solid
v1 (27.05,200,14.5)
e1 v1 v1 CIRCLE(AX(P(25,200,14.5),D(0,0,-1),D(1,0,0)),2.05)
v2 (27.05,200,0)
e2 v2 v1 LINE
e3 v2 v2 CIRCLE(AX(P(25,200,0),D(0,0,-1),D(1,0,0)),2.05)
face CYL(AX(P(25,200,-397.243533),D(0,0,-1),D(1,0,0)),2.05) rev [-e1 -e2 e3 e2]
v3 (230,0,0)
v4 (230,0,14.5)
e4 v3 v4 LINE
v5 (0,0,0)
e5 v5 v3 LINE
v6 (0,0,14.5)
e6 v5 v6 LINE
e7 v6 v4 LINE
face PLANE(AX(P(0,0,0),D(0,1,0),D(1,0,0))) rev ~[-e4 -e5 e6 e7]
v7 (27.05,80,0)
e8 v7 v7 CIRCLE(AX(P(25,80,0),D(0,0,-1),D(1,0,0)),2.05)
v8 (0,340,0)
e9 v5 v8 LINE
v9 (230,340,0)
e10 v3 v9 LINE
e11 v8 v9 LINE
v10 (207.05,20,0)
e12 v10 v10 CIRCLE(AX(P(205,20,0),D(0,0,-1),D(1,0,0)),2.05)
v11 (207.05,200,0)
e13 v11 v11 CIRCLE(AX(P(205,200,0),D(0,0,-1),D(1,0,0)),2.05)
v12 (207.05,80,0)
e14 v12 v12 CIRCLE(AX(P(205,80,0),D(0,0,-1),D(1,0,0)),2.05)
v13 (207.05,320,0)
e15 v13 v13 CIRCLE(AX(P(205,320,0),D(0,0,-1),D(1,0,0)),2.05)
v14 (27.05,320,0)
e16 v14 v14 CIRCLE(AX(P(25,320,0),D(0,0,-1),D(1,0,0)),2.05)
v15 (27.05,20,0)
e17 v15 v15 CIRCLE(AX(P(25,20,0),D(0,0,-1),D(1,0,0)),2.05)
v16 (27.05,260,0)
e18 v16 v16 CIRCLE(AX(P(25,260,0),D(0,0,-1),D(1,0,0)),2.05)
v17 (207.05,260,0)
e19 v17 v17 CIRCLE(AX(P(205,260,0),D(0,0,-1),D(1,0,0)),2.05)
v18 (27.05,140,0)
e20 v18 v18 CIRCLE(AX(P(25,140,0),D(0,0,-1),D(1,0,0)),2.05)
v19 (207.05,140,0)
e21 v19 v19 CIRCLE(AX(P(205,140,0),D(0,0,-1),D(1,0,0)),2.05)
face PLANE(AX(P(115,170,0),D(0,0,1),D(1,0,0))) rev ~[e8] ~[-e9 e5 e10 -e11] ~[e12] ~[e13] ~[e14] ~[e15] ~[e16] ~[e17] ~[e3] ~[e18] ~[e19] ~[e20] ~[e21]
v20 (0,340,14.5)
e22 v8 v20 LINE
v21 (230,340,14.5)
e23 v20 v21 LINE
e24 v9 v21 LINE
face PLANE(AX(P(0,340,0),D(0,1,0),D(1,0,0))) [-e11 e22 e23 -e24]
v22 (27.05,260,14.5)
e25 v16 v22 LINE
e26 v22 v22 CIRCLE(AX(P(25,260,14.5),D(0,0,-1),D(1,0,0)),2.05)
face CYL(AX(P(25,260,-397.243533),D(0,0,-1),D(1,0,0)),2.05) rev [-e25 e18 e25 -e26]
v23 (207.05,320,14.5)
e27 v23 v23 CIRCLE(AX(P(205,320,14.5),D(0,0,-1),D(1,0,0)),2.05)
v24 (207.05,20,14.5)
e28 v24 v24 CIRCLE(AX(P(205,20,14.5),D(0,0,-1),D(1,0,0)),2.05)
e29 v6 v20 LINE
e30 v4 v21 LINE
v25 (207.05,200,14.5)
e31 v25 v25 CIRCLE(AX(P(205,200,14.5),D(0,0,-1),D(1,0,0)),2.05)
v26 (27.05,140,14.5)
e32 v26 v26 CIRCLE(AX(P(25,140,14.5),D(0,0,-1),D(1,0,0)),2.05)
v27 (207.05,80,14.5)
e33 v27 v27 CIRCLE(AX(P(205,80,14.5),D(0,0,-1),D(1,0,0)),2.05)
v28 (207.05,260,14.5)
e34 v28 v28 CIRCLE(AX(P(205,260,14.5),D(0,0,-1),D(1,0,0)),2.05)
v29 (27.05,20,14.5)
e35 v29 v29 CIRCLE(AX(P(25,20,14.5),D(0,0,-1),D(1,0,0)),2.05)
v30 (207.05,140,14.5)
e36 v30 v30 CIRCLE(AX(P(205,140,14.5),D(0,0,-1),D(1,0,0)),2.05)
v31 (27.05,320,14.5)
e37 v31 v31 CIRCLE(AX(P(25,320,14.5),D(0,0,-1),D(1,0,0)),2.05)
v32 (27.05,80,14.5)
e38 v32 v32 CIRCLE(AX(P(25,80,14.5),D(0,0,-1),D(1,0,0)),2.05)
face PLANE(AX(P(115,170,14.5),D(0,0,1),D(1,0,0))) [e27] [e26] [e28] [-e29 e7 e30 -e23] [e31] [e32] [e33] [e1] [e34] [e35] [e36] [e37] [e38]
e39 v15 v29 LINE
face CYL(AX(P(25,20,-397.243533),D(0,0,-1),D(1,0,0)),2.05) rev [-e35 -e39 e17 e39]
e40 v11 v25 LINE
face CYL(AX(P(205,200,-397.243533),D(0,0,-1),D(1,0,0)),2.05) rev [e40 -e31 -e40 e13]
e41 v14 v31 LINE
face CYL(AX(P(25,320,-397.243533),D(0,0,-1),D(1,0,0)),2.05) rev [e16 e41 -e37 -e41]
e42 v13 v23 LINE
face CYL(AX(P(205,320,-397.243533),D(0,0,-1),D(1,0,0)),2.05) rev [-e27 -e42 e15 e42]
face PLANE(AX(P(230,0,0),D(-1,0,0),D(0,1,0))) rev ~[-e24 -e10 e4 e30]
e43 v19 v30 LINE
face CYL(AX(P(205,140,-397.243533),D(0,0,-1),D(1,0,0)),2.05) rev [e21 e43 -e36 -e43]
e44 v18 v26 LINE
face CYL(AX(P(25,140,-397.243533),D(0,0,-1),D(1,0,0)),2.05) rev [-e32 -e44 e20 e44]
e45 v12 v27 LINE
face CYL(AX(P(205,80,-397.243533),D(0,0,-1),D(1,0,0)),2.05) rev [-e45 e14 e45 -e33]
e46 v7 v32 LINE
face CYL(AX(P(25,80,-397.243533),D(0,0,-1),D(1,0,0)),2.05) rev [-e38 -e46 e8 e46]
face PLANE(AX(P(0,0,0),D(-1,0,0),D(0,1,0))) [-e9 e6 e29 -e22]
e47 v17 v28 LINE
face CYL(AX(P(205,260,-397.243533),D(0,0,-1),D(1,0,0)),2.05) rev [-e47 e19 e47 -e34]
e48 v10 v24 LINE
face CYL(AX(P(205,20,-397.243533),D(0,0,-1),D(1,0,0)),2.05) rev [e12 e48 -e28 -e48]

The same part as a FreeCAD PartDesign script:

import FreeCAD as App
import Part
import Sketcher
from FreeCAD import Vector
Q = App.Units.Quantity


def add_polygon(sketch, points):
    """Adds a closed chain of lines whose ends are joined by coincident constraints."""
    first, n = sketch.GeometryCount, len(points)
    for a, b in zip(points, points[1:] + points[:1]):
        sketch.addGeometry(Part.LineSegment(App.Vector(*a, 0), App.Vector(*b, 0)), False)
    for i in range(n):
        sketch.addConstraint(Sketcher.Constraint("Coincident", first + i, 2, first + (i + 1) % n, 1))

doc = App.newDocument("Part")
body = doc.addObject("PartDesign::Body", "Body")

# Sketch on XY plane
sketch1 = body.newObject("Sketcher::SketchObject", "Sketch")
sketch1.AttachmentSupport = (doc.getObject("XY_Plane"), [""])
sketch1.MapMode = "FlatFace"
add_polygon(sketch1, [(0, 340), (0, 0), (230, 0), (230, 340)])  # lines 0-3
sketch1.addConstraint([
    Sketcher.Constraint("Vertical", 0),
    Sketcher.Constraint("Horizontal", 1),
    Sketcher.Constraint("Vertical", 2),
    Sketcher.Constraint("Horizontal", 3),
    Sketcher.Constraint("Coincident", 0, 2, -1, 1),
    Sketcher.Constraint("DistanceX", 1, 1, 1, 2, Q("230 mm")),
    Sketcher.Constraint("DistanceY", 0, 2, 0, 1, Q("340 mm")),
])
pad1 = body.newObject("PartDesign::Pad", "Pad")
pad1.Profile = sketch1
pad1.Length = 14.5

# Sketch on XY plane
sketch2 = body.newObject("Sketcher::SketchObject", "Sketch001")
sketch2.AttachmentSupport = (doc.getObject("XY_Plane"), [""])
sketch2.MapMode = "FlatFace"
sketch2.AttachmentOffset = App.Placement(Vector(0, 0, 14.5), App.Rotation())
sketch2.addGeometry([
    Part.Circle(Vector(25, 20, 0), Vector(0, 0, 1), 2.05),  # 0
    Part.Circle(Vector(25, 80, 0), Vector(0, 0, 1), 2.05),  # 1
    Part.Circle(Vector(25, 140, 0), Vector(0, 0, 1), 2.05),  # 2
    Part.Circle(Vector(25, 200, 0), Vector(0, 0, 1), 2.05),  # 3
    Part.Circle(Vector(25, 260, 0), Vector(0, 0, 1), 2.05),  # 4
    Part.Circle(Vector(25, 320, 0), Vector(0, 0, 1), 2.05),  # 5
    Part.Circle(Vector(205, 320, 0), Vector(0, 0, 1), 2.05),  # 6
    Part.Circle(Vector(205, 260, 0), Vector(0, 0, 1), 2.05),  # 7
    Part.Circle(Vector(205, 200, 0), Vector(0, 0, 1), 2.05),  # 8
    Part.Circle(Vector(205, 140, 0), Vector(0, 0, 1), 2.05),  # 9
    Part.Circle(Vector(205, 80, 0), Vector(0, 0, 1), 2.05),  # 10
    Part.Circle(Vector(205, 20, 0), Vector(0, 0, 1), 2.05),  # 11
], False)
sketch2.addConstraint([
    Sketcher.Constraint("Equal", 0, 1),
    Sketcher.Constraint("Equal", 1, 2),
    Sketcher.Constraint("Equal", 2, 3),
    Sketcher.Constraint("Equal", 3, 4),
    Sketcher.Constraint("Equal", 4, 5),
    Sketcher.Constraint("Equal", 5, 6),
    Sketcher.Constraint("Equal", 6, 7),
    Sketcher.Constraint("Equal", 7, 8),
    Sketcher.Constraint("Equal", 8, 9),
    Sketcher.Constraint("Equal", 9, 10),
    Sketcher.Constraint("Equal", 10, 11),
    Sketcher.Constraint("Horizontal", 5, 3, 6, 3),
    Sketcher.Constraint("Horizontal", 4, 3, 7, 3),
    Sketcher.Constraint("Horizontal", 3, 3, 8, 3),
    Sketcher.Constraint("Horizontal", 2, 3, 9, 3),
    Sketcher.Constraint("Horizontal", 1, 3, 10, 3),
    Sketcher.Constraint("Horizontal", 0, 3, 11, 3),
    Sketcher.Constraint("Vertical", 0, 3, 1, 3),
    Sketcher.Constraint("Vertical", 1, 3, 2, 3),
    Sketcher.Constraint("Vertical", 2, 3, 3, 3),
    Sketcher.Constraint("Vertical", 3, 3, 4, 3),
    Sketcher.Constraint("Vertical", 4, 3, 5, 3),
    Sketcher.Constraint("Vertical", 6, 3, 7, 3),
    Sketcher.Constraint("Vertical", 7, 3, 8, 3),
    Sketcher.Constraint("Vertical", 8, 3, 9, 3),
    Sketcher.Constraint("Vertical", 9, 3, 10, 3),
    Sketcher.Constraint("Vertical", 10, 3, 11, 3),
    Sketcher.Constraint("Diameter", 0, Q("4.1 mm")),
    Sketcher.Constraint("DistanceX", -1, 1, 0, 3, Q("25 mm")),
    Sketcher.Constraint("DistanceY", -1, 1, 0, 3, Q("20 mm")),
    Sketcher.Constraint("DistanceY", -1, 1, 1, 3, Q("80 mm")),
    Sketcher.Constraint("DistanceY", -1, 1, 2, 3, Q("140 mm")),
    Sketcher.Constraint("DistanceY", -1, 1, 3, 3, Q("200 mm")),
    Sketcher.Constraint("DistanceY", -1, 1, 4, 3, Q("260 mm")),
    Sketcher.Constraint("DistanceY", -1, 1, 5, 3, Q("320 mm")),
    Sketcher.Constraint("DistanceX", -1, 1, 6, 3, Q("205 mm")),
])
pocket1 = body.newObject("PartDesign::Pocket", "Pocket")
pocket1.Profile = sketch2
pocket1.Type = "ThroughAll"
pocket1.Midplane = True

doc.recompute()
